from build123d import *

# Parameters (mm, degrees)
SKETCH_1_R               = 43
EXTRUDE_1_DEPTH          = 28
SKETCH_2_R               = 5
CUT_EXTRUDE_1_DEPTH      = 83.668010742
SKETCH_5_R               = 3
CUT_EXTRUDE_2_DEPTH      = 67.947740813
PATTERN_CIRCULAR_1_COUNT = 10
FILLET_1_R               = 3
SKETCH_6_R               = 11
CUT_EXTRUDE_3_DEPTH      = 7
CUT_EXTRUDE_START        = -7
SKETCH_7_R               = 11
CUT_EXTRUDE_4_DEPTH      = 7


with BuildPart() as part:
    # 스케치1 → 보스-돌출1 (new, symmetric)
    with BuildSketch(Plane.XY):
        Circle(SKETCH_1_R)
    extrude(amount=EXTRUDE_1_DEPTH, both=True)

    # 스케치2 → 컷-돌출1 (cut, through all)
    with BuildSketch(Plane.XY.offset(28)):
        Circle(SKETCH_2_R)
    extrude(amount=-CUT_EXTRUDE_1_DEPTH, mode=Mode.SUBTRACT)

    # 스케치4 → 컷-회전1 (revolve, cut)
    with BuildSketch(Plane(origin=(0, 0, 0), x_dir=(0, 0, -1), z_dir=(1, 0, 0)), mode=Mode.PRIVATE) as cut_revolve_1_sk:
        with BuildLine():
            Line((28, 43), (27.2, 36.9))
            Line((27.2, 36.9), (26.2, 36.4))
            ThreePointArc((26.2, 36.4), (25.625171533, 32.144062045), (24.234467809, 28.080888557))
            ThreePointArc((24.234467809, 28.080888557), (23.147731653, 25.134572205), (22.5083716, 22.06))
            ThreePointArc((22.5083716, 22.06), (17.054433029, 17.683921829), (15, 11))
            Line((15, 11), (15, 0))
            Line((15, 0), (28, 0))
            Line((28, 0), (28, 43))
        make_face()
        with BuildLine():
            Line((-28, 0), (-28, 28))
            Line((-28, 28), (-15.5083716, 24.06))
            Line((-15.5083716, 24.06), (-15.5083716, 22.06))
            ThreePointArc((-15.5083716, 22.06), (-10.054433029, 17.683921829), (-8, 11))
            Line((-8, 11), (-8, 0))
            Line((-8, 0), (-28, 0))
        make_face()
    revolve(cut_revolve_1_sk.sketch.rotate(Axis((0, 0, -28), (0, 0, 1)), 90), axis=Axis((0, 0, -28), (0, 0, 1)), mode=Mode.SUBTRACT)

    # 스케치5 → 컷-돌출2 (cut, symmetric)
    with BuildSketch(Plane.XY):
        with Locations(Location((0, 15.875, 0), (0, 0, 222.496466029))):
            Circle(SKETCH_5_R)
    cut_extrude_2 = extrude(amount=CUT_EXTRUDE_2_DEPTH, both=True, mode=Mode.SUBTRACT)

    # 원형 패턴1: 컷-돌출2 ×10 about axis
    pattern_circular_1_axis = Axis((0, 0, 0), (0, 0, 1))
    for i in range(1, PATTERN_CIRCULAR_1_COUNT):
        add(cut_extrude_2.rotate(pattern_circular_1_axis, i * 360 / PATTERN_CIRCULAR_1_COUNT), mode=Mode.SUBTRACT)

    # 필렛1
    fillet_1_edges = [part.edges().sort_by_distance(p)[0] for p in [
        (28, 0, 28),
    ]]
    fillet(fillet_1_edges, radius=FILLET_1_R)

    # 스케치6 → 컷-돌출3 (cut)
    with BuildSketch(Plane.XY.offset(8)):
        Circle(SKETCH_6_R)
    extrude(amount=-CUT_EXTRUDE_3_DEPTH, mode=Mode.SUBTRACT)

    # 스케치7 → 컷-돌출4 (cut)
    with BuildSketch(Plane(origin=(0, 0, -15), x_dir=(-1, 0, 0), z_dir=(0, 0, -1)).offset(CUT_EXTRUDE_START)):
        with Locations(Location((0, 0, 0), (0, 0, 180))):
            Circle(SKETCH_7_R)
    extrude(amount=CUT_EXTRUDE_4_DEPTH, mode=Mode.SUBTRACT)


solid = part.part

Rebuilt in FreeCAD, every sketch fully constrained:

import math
import FreeCAD as App
import Part
import Sketcher
from FreeCAD import Vector
Q = App.Units.Quantity


def edges_at(feature, points):
    """Names of the edges that pass closest to the given points."""
    edges = feature.Shape.Edges
    near = lambda p: min(range(len(edges)), key=lambda i: edges[i].distToShape(Part.Vertex(*p))[0])
    return sorted({f"Edge{near(p) + 1}" for p in points})

doc = App.newDocument("Part")
body = doc.addObject("PartDesign::Body", "Body")

sketch1 = doc.addObject("Sketcher::SketchObject", "Sketch")
body.addObject(sketch1)
sketch1.AttachmentSupport = (doc.XY_Plane, [""])
sketch1.MapMode = "FlatFace"
sketch1.addGeometry(Part.Circle(Vector(0, 0, 0), Vector(0, 0, 1), 43), False)
sketch1.addConstraint(Sketcher.Constraint("Coincident", 0, 3, -1, 1))
sketch1.addConstraint(Sketcher.Constraint("Diameter", 0, Q("86 mm")))
pad1 = doc.addObject("PartDesign::Pad", "Pad")
body.addObject(pad1)
pad1.Profile = sketch1
pad1.Length = 56
pad1.Midplane = True

sketch2 = doc.addObject("Sketcher::SketchObject", "Sketch001")
body.addObject(sketch2)
sketch2.AttachmentSupport = (doc.XY_Plane, [""])
sketch2.MapMode = "FlatFace"
sketch2.AttachmentOffset = App.Placement(Vector(0, 0, 28), App.Rotation())
sketch2.addGeometry(Part.Circle(Vector(0, 0, 0), Vector(0, 0, 1), 5), False)
sketch2.addConstraint(Sketcher.Constraint("Coincident", 0, 3, -1, 1))
sketch2.addConstraint(Sketcher.Constraint("Diameter", 0, Q("10 mm")))
pocket1 = doc.addObject("PartDesign::Pocket", "Pocket")
body.addObject(pocket1)
pocket1.Profile = sketch2
pocket1.Type = "ThroughAll"

sketch3 = doc.addObject("Sketcher::SketchObject", "Sketch002")
body.addObject(sketch3)
sketch3.AttachmentSupport = (doc.YZ_Plane, [""])
sketch3.MapMode = "FlatFace"
sketch3.addGeometry(Part.LineSegment(Vector(43, -28, 0), Vector(36.9, -27.2, 0)), False)
sketch3.addGeometry(Part.LineSegment(Vector(36.9, -27.2, 0), Vector(36.4, -26.2, 0)), False)
sketch3.addGeometry(Part.ArcOfCircle(Part.Circle(Vector(37.2, -4.2, 0), Vector(0, 0, 1), 22), math.radians(-114), math.radians(-92)), False)
sketch3.addGeometry(Part.ArcOfCircle(Part.Circle(Vector(19.3, -43.5, 0), Vector(0, 0, 1), 21.2), math.radians(65.5), math.radians(82.5)), False)
sketch3.addGeometry(Part.ArcOfCircle(Part.Circle(Vector(11, -26.9, 0), Vector(0, 0, 1), 11.9), math.radians(22), math.radians(90)), False)
sketch3.addGeometry(Part.LineSegment(Vector(11, -15, 0), Vector(0, -15, 0)), False)
sketch3.addGeometry(Part.LineSegment(Vector(0, -15, 0), Vector(0, -28, 0)), False)
sketch3.addGeometry(Part.LineSegment(Vector(0, -28, 0), Vector(43, -28, 0)), False)
sketch3.addGeometry(Part.LineSegment(Vector(28, 28, 0), Vector(0, 28, 0)), False)
sketch3.addGeometry(Part.LineSegment(Vector(0, 28, 0), Vector(0, 8, 0)), False)
sketch3.addGeometry(Part.LineSegment(Vector(0, 8, 0), Vector(11, 8, 0)), False)
sketch3.addGeometry(Part.ArcOfCircle(Part.Circle(Vector(11, 19.9, 0), Vector(0, 0, 1), 11.9), math.radians(-90), math.radians(-22)), False)
sketch3.addGeometry(Part.LineSegment(Vector(22.1, 15.5, 0), Vector(24.1, 15.5, 0)), False)
sketch3.addGeometry(Part.LineSegment(Vector(24.1, 15.5, 0), Vector(28, 28, 0)), False)
sketch3.addConstraint(Sketcher.Constraint("Coincident", 0, 2, 1, 1))
sketch3.addConstraint(Sketcher.Constraint("Coincident", 1, 2, 2, 2))
sketch3.addConstraint(Sketcher.Constraint("Tangent", 2, 1, 3, 1))
sketch3.addConstraint(Sketcher.Constraint("Coincident", 3, 2, 4, 1))
sketch3.addConstraint(Sketcher.Constraint("Tangent", 4, 2, 5, 1))
sketch3.addConstraint(Sketcher.Constraint("Coincident", 5, 2, 6, 1))
sketch3.addConstraint(Sketcher.Constraint("Coincident", 6, 2, 7, 1))
sketch3.addConstraint(Sketcher.Constraint("Coincident", 7, 2, 0, 1))
sketch3.addConstraint(Sketcher.Constraint("Coincident", 8, 2, 9, 1))
sketch3.addConstraint(Sketcher.Constraint("Coincident", 9, 2, 10, 1))
sketch3.addConstraint(Sketcher.Constraint("Tangent", 10, 2, 11, 1))
sketch3.addConstraint(Sketcher.Constraint("Coincident", 11, 2, 12, 1))
sketch3.addConstraint(Sketcher.Constraint("Coincident", 12, 2, 13, 1))
sketch3.addConstraint(Sketcher.Constraint("Coincident", 13, 2, 8, 1))
sketch3.addConstraint(Sketcher.Constraint("Horizontal", 5))
sketch3.addConstraint(Sketcher.Constraint("Vertical", 6))
sketch3.addConstraint(Sketcher.Constraint("Horizontal", 7))
sketch3.addConstraint(Sketcher.Constraint("Horizontal", 8))
sketch3.addConstraint(Sketcher.Constraint("Vertical", 9))
sketch3.addConstraint(Sketcher.Constraint("Horizontal", 10))
sketch3.addConstraint(Sketcher.Constraint("Horizontal", 12))
sketch3.addConstraint(Sketcher.Constraint("Equal", 4, 11))
sketch3.addConstraint(Sketcher.Constraint("Symmetric", 6, 2, 8, 2, -1, 1))
sketch3.addConstraint(Sketcher.Constraint("PointOnObject", 5, 2, -2))
sketch3.addConstraint(Sketcher.Constraint("Vertical", 4, 3, 11, 3))
sketch3.addConstraint(Sketcher.Constraint("Vertical", 3, 2, 11, 2))
sketch3.addConstraint(Sketcher.Constraint("Radius", 2, Q("22 mm")))
sketch3.addConstraint(Sketcher.Constraint("Radius", 4, Q("11.9 mm")))
sketch3.addConstraint(Sketcher.Constraint("DistanceX", 5, 2, 5, 1, Q("11 mm")))
sketch3.addConstraint(Sketcher.Constraint("DistanceX", 7, 1, 7, 2, Q("43 mm")))
sketch3.addConstraint(Sketcher.Constraint("DistanceX", 8, 2, 8, 1, Q("28 mm")))
sketch3.addConstraint(Sketcher.Constraint("DistanceX", 12, 1, 12, 2, Q("2 mm")))
sketch3.addConstraint(Sketcher.Constraint("DistanceY", 6, 2, 6, 1, Q("13 mm")))
sketch3.addConstraint(Sketcher.Constraint("DistanceY", 9, 2, 9, 1, Q("20 mm")))
sketch3.addConstraint(Sketcher.Constraint("Radius", 3, Q("21.19 mm")))
sketch3.addConstraint(Sketcher.Constraint("DistanceY", 4, 2, -1, 1, Q("15 mm")))
sketch3.addConstraint(Sketcher.Constraint("DistanceY", 0, 2, 1, 2, Q("1 mm")))
sketch3.addConstraint(Sketcher.Constraint("DistanceX", -1, 1, 0, 2, Q("36.9 mm")))
sketch3.addConstraint(Sketcher.Constraint("DistanceY", 0, 2, -1, 1, Q("27.2 mm")))
sketch3.addConstraint(Sketcher.Constraint("DistanceX", -1, 1, 1, 2, Q("36.4 mm")))
sketch3.addConstraint(Sketcher.Constraint("DistanceX", -1, 1, 3, 2, Q("22.06 mm")))
sketch3.addConstraint(Sketcher.Constraint("DistanceX", -1, 1, 3, 3, Q("19.29496 mm")))
groove = doc.addObject("PartDesign::Groove", "Groove")
body.addObject(groove)
groove.Profile = sketch3
groove.ReferenceAxis = (sketch3, ["V_Axis"])
groove.Angle = 360

sketch4 = doc.addObject("Sketcher::SketchObject", "Sketch003")
body.addObject(sketch4)
sketch4.AttachmentSupport = (doc.XY_Plane, [""])
sketch4.MapMode = "FlatFace"
sketch4.addGeometry(Part.Circle(Vector(0, 15.9, 0), Vector(0, 0, 1), 3), False)
sketch4.addConstraint(Sketcher.Constraint("PointOnObject", 0, 3, -2))
sketch4.addConstraint(Sketcher.Constraint("Diameter", 0, Q("6 mm")))
sketch4.addConstraint(Sketcher.Constraint("DistanceY", -1, 1, 0, 3, Q("15.875 mm")))
pocket2 = doc.addObject("PartDesign::Pocket", "Pocket001")
body.addObject(pocket2)
pocket2.Profile = sketch4
pocket2.Length = 135.895482
pocket2.Midplane = True
doc.recompute()

polarpattern = doc.addObject("PartDesign::PolarPattern", "PolarPattern")
body.addObject(polarpattern)
polarpattern.Originals = [pocket2]
polarpattern.Axis = (doc.Z_Axis, [""])
polarpattern.Angle = 360
polarpattern.Occurrences = 10
body.Tip = polarpattern
doc.recompute()

fillet = doc.addObject("PartDesign::Fillet", "Fillet")
body.addObject(fillet)
fillet.Base = (polarpattern, edges_at(polarpattern, [(28, 0, 28)]))
fillet.Radius = 3

sketch5 = doc.addObject("Sketcher::SketchObject", "Sketch004")
body.addObject(sketch5)
sketch5.AttachmentSupport = (doc.XY_Plane, [""])
sketch5.MapMode = "FlatFace"
sketch5.AttachmentOffset = App.Placement(Vector(0, 0, 8), App.Rotation())
sketch5.addGeometry(Part.Circle(Vector(0, 0, 0), Vector(0, 0, 1), 11), False)
sketch5.addConstraint(Sketcher.Constraint("Coincident", 0, 3, -1, 1))
sketch5.addConstraint(Sketcher.Constraint("Diameter", 0, Q("22 mm")))
pocket3 = doc.addObject("PartDesign::Pocket", "Pocket002")
body.addObject(pocket3)
pocket3.Profile = sketch5
pocket3.Length = 7

sketch6 = doc.addObject("Sketcher::SketchObject", "Sketch005")
body.addObject(sketch6)
sketch6.AttachmentSupport = (doc.XY_Plane, [""])
sketch6.MapMode = "FlatFace"
sketch6.AttachmentOffset = App.Placement(Vector(0, 0, -8), App.Rotation())
sketch6.addGeometry(Part.Circle(Vector(0, 0, 0), Vector(0, 0, 1), 11), False)
sketch6.addConstraint(Sketcher.Constraint("Coincident", 0, 3, -1, 1))
sketch6.addConstraint(Sketcher.Constraint("Diameter", 0, Q("22 mm")))
pocket4 = doc.addObject("PartDesign::Pocket", "Pocket003")
body.addObject(pocket4)
pocket4.Profile = sketch6
pocket4.Length = 7

doc.recompute()
